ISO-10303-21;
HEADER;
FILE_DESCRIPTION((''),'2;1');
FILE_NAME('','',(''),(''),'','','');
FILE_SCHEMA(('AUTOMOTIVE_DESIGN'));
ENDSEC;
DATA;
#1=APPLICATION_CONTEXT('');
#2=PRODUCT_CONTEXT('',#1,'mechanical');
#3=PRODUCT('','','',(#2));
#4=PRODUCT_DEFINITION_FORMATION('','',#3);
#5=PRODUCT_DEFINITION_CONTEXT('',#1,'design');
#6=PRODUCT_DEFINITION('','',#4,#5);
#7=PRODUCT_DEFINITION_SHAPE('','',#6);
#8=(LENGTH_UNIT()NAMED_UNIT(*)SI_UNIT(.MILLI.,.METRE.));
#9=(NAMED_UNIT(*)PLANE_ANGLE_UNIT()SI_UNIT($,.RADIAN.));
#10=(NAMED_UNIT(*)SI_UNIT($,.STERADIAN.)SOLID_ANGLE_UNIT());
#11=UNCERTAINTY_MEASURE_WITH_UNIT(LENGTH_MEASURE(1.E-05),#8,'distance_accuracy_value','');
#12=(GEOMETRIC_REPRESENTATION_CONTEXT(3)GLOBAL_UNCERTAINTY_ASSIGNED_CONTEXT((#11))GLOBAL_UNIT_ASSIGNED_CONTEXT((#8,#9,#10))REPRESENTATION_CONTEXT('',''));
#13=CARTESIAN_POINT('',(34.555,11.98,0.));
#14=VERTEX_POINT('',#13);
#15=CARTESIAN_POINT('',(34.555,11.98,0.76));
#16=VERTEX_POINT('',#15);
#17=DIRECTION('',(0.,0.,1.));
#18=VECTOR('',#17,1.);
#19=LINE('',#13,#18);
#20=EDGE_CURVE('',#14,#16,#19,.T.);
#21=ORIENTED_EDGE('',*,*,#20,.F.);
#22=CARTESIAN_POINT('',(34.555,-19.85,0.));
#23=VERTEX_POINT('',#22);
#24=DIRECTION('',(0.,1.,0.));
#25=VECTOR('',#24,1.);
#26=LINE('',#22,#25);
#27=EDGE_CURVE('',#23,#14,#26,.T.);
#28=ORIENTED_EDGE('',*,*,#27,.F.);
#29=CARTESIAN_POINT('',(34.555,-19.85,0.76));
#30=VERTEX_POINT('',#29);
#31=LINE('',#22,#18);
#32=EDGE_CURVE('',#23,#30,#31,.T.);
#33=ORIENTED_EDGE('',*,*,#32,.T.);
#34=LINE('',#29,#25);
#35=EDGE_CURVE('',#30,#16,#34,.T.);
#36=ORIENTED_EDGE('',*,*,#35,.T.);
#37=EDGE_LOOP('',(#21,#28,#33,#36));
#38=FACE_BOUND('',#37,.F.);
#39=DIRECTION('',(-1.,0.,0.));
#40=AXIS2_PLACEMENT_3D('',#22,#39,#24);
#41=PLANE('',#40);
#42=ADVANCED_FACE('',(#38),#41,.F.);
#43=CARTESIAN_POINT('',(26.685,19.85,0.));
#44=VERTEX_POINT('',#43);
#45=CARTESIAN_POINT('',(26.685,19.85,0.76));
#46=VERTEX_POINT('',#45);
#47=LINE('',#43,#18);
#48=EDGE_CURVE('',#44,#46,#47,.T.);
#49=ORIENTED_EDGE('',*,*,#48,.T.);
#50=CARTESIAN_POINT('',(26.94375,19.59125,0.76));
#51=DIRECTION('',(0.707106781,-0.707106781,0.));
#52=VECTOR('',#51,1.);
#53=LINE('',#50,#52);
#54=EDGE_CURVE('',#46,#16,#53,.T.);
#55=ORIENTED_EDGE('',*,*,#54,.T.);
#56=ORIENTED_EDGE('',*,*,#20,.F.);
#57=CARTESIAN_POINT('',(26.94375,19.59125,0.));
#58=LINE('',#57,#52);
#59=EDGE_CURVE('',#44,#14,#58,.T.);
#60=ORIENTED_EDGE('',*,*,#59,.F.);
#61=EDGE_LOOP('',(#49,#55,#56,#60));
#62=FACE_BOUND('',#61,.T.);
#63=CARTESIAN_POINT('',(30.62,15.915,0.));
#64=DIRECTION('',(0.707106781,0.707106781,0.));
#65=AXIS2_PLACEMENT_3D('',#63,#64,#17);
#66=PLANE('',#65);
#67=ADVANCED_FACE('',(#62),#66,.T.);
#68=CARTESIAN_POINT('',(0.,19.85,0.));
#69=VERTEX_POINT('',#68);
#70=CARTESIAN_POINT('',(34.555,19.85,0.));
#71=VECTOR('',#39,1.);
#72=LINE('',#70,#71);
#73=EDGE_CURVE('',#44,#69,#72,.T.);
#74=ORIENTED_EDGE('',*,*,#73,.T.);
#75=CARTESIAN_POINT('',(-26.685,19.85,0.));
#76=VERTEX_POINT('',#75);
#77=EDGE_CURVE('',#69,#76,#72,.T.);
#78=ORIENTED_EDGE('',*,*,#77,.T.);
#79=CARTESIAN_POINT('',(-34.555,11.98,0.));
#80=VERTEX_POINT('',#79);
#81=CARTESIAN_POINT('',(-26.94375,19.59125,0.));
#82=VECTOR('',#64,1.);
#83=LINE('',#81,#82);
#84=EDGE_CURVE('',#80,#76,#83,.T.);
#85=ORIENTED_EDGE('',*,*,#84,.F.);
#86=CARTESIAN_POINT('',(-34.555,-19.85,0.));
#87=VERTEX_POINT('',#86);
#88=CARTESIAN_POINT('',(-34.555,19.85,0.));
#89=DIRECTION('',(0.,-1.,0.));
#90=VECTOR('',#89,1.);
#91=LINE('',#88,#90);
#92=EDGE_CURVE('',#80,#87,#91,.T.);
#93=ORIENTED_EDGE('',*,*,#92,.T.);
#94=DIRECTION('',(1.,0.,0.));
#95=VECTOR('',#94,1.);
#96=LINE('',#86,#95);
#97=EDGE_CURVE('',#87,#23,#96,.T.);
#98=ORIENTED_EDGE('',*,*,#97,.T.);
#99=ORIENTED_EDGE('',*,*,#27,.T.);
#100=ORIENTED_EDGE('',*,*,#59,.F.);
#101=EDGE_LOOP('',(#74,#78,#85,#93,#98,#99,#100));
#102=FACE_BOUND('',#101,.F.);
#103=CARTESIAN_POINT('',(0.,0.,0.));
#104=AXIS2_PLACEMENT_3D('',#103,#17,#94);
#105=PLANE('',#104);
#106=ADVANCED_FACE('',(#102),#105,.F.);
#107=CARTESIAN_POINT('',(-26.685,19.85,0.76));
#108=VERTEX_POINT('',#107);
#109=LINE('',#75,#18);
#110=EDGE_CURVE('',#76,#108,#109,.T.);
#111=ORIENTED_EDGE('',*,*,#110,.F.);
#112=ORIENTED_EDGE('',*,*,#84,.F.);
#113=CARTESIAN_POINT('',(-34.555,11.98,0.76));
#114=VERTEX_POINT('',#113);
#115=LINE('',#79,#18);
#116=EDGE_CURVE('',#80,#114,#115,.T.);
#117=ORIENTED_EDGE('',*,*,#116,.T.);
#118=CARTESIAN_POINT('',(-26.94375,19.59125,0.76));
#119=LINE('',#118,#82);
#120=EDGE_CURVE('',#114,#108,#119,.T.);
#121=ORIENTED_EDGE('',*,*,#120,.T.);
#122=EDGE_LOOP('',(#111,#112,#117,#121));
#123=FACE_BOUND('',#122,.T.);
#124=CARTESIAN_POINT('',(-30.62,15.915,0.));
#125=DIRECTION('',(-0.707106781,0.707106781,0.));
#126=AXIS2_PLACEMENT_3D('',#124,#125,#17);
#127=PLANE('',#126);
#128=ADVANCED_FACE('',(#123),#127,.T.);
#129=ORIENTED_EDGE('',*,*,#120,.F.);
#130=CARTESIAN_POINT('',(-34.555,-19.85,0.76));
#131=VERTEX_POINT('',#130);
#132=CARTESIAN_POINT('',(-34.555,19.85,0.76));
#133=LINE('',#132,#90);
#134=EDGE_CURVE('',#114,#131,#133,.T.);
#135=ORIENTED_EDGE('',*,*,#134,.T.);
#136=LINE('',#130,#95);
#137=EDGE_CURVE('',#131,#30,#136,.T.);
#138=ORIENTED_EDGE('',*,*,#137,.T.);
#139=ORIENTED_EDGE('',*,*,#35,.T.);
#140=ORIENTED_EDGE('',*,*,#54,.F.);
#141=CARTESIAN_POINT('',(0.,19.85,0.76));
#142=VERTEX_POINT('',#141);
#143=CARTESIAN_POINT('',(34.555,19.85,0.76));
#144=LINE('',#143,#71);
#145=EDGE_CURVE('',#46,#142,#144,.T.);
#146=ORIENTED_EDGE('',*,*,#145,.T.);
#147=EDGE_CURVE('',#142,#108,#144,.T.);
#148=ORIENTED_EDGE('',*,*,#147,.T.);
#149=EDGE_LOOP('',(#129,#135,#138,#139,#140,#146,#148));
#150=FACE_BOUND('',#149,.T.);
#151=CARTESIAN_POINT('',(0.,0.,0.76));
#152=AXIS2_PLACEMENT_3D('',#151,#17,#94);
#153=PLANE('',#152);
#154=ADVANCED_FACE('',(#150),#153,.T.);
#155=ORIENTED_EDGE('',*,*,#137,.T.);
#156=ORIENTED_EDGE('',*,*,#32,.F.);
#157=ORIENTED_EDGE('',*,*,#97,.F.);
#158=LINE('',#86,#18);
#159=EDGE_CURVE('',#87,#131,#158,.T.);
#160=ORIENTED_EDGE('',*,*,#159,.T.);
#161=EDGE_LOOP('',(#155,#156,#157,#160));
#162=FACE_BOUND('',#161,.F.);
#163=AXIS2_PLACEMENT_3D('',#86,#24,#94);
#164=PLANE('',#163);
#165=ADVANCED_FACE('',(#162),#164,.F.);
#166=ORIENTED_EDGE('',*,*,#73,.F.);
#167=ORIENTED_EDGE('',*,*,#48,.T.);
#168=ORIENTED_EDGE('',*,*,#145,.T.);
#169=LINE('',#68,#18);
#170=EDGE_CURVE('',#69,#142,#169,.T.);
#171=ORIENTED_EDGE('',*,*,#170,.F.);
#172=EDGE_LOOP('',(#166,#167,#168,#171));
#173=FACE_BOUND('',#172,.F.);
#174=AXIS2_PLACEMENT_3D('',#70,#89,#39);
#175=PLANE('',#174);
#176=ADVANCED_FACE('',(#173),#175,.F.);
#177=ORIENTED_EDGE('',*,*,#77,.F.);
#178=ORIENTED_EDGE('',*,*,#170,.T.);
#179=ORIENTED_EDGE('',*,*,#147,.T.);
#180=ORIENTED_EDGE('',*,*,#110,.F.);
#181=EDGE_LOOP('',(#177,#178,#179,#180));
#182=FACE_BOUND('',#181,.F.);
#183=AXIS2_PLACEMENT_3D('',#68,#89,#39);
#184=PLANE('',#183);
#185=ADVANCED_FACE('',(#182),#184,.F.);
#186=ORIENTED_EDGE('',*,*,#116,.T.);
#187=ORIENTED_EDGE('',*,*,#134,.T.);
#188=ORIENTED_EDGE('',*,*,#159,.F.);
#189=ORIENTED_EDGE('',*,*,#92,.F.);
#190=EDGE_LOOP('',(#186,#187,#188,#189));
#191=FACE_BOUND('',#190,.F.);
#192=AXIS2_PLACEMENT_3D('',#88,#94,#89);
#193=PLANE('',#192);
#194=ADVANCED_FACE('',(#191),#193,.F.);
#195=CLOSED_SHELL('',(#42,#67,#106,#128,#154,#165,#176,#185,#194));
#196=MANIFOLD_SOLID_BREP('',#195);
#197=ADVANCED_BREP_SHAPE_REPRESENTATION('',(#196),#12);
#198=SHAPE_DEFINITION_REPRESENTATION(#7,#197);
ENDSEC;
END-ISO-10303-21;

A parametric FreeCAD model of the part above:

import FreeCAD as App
import Part
import Sketcher

V = App.Vector
Q = App.Units.Quantity


def edges_at(feature, points):
    """Names of the edges that pass closest to the given points."""
    edges = feature.Shape.Edges
    near = lambda p: min(range(len(edges)), key=lambda i: edges[i].distToShape(Part.Vertex(*p))[0])
    return sorted({f"Edge{near(p) + 1}" for p in points})


def add_polygon(sketch, points):
    """Adds a closed chain of lines whose ends are joined by coincident constraints."""
    first, n = sketch.GeometryCount, len(points)
    for a, b in zip(points, points[1:] + points[:1]):
        sketch.addGeometry(Part.LineSegment(App.Vector(*a, 0), App.Vector(*b, 0)), False)
    for i in range(n):
        sketch.addConstraint(Sketcher.Constraint("Coincident", first + i, 2, first + (i + 1) % n, 1))

doc = App.newDocument("Part")
body = doc.addObject("PartDesign::Body", "Body")

sketch1 = doc.addObject("Sketcher::SketchObject", "Sketch")
body.addObject(sketch1)
sketch1.AttachmentSupport = (doc.XY_Plane, [""])
sketch1.MapMode = "FlatFace"
add_polygon(sketch1, [(-34.555, 19.85), (-34.555, -19.85), (34.555, -19.85), (34.555, 19.85)])
sketch1.addConstraint(Sketcher.Constraint("Vertical", 0))
sketch1.addConstraint(Sketcher.Constraint("Horizontal", 1))
sketch1.addConstraint(Sketcher.Constraint("Vertical", 2))
sketch1.addConstraint(Sketcher.Constraint("Horizontal", 3))
sketch1.addConstraint(Sketcher.Constraint("Symmetric", 0, 2, 2, 2, -1, 1))
sketch1.addConstraint(Sketcher.Constraint("DistanceY", 0, 2, 0, 1, Q("1.563 in")))
sketch1.addConstraint(Sketcher.Constraint("DistanceX", 1, 1, 1, 2, 69.11))
pad1 = doc.addObject("PartDesign::Pad", "Pad")
body.addObject(pad1)
pad1.Profile = sketch1
pad1.Length = 0.76
doc.recompute()

chamfer = doc.addObject("PartDesign::Chamfer", "Chamfer")
body.addObject(chamfer)
chamfer.Base = (pad1, edges_at(pad1, [(34.555, 19.85, 0.38), (-34.555, 19.85, 0.38)]))
chamfer.Size = 7.87

doc.recompute()
